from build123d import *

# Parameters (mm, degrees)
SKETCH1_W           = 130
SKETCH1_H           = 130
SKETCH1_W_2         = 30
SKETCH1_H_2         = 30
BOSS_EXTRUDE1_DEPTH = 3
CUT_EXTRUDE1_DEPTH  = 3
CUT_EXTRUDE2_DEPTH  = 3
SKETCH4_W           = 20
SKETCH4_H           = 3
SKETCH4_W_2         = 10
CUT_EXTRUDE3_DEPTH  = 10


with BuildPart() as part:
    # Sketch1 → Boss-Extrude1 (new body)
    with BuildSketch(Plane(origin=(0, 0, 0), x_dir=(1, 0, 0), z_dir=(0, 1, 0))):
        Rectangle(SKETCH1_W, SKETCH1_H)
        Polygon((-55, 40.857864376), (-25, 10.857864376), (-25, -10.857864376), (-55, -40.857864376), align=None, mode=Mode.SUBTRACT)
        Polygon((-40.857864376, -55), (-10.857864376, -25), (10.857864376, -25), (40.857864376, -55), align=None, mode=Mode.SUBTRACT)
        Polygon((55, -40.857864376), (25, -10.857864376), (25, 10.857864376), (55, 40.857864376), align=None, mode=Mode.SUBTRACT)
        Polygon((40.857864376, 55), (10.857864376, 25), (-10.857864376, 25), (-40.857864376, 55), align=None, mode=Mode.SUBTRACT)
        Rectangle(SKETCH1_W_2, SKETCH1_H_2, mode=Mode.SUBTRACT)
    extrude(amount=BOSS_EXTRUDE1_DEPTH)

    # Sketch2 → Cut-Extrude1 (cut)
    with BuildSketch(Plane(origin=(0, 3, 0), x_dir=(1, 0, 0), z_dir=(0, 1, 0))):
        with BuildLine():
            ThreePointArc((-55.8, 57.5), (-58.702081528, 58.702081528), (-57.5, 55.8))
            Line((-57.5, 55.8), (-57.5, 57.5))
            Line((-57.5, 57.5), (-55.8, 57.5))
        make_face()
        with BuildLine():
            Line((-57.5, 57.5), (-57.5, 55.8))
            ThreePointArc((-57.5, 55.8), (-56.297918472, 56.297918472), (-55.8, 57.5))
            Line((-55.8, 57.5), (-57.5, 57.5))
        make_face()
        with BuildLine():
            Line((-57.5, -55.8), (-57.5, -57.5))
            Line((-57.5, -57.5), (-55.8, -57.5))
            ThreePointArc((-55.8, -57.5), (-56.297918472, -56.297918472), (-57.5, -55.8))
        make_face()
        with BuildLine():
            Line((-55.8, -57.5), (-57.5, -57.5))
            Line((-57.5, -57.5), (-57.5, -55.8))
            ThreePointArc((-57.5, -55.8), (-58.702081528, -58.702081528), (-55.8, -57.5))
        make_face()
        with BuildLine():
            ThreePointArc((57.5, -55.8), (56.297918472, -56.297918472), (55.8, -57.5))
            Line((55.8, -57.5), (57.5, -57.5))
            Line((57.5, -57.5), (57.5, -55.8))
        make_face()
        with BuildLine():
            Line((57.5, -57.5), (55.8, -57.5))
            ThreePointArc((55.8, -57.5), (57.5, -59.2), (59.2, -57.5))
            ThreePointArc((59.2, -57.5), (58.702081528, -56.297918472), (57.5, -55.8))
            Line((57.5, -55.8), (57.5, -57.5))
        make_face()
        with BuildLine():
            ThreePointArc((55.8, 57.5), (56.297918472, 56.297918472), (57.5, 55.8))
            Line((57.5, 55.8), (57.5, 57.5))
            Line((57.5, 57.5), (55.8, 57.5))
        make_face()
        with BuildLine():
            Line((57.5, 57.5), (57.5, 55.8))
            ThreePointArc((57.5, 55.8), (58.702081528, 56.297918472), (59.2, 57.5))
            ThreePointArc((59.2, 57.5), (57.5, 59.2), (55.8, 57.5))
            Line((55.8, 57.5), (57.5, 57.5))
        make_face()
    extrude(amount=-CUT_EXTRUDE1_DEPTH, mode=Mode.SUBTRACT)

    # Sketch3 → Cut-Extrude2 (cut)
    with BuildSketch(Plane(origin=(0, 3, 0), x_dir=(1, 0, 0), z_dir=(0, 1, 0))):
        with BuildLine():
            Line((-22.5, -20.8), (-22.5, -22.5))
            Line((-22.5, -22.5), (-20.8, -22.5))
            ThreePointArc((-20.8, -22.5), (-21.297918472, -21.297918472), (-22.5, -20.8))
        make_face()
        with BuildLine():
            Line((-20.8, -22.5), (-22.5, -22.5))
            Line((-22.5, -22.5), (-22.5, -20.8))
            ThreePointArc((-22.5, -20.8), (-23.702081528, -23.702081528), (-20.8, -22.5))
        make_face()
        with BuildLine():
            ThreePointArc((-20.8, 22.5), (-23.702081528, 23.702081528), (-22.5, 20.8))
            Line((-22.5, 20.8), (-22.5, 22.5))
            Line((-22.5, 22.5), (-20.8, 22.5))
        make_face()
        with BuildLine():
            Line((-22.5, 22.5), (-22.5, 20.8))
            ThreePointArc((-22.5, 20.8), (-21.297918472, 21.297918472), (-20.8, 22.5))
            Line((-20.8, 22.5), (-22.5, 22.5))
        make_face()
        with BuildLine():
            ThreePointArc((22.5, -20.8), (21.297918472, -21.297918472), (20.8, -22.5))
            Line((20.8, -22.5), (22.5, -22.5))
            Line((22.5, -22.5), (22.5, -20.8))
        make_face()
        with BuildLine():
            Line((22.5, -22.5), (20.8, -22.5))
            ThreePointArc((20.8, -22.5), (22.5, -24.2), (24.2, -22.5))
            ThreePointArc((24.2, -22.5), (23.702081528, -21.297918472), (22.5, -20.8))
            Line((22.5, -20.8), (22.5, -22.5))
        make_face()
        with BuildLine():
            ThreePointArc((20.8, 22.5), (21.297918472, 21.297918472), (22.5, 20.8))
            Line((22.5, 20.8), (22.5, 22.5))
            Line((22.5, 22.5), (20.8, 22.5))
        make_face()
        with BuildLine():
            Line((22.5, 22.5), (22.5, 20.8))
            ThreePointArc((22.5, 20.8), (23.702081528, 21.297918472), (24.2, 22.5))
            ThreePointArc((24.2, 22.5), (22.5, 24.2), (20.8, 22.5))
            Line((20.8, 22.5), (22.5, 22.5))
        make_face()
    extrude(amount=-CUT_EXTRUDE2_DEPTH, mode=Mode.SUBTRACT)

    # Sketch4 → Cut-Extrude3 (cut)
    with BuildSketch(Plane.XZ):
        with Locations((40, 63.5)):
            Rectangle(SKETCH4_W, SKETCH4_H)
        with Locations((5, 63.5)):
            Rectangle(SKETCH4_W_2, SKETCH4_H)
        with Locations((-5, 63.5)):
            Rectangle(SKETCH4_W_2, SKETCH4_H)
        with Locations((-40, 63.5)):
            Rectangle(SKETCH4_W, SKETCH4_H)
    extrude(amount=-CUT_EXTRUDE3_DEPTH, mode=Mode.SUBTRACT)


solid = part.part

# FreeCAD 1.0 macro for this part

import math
import FreeCAD as App
import Part
import Sketcher

V = App.Vector
Q = App.Units.Quantity

doc = App.newDocument("Part")
body = doc.addObject("PartDesign::Body", "Body")

sketch1 = body.newObject("Sketcher::SketchObject", "Sketch")
sketch1.AttachmentSupport = (doc.getObject("XZ_Plane"), [""])
sketch1.MapMode = "FlatFace"
sketch1.addGeometry([
    Part.LineSegment(V(-65, -65, 0), V(-65, 65, 0)),
    Part.LineSegment(V(-65, 65, 0), V(65, 65, 0)),
    Part.LineSegment(V(65, 65, 0), V(65, -65, 0)),
    Part.LineSegment(V(65, -65, 0), V(-65, -65, 0)),
    Part.LineSegment(V(40.857864, 55, 0), V(-40.857864, 55, 0)),
    Part.LineSegment(V(-40.857864, 55, 0), V(-10.857864, 25, 0)),
    Part.LineSegment(V(-10.857864, 25, 0), V(10.857864, 25, 0)),
    Part.LineSegment(V(10.857864, 25, 0), V(40.857864, 55, 0)),
    Part.LineSegment(V(-55, 40.857864, 0), V(-55, -40.857864, 0)),
    Part.LineSegment(V(-55, -40.857864, 0), V(-25, -10.857864, 0)),
    Part.LineSegment(V(-25, -10.857864, 0), V(-25, 10.857864, 0)),
    Part.LineSegment(V(-25, 10.857864, 0), V(-55, 40.857864, 0)),
    Part.LineSegment(V(15, 15, 0), V(-15, 15, 0)),
    Part.LineSegment(V(-15, 15, 0), V(-15, -15, 0)),
    Part.LineSegment(V(-15, -15, 0), V(15, -15, 0)),
    Part.LineSegment(V(15, -15, 0), V(15, 15, 0)),
    Part.LineSegment(V(55, -40.857864, 0), V(55, 40.857864, 0)),
    Part.LineSegment(V(55, 40.857864, 0), V(25, 10.857864, 0)),
    Part.LineSegment(V(25, 10.857864, 0), V(25, -10.857864, 0)),
    Part.LineSegment(V(25, -10.857864, 0), V(55, -40.857864, 0)),
    Part.LineSegment(V(-40.857864, -55, 0), V(40.857864, -55, 0)),
    Part.LineSegment(V(40.857864, -55, 0), V(10.857864, -25, 0)),
    Part.LineSegment(V(10.857864, -25, 0), V(-10.857864, -25, 0)),
    Part.LineSegment(V(-10.857864, -25, 0), V(-40.857864, -55, 0)),
], False)
sketch1.addConstraint([
    Sketcher.Constraint("Coincident", 0, 2, 1, 1),
    Sketcher.Constraint("Coincident", 1, 2, 2, 1),
    Sketcher.Constraint("Coincident", 2, 2, 3, 1),
    Sketcher.Constraint("Coincident", 3, 2, 0, 1),
    Sketcher.Constraint("Coincident", 4, 2, 5, 1),
    Sketcher.Constraint("Coincident", 5, 2, 6, 1),
    Sketcher.Constraint("Coincident", 6, 2, 7, 1),
    Sketcher.Constraint("Coincident", 7, 2, 4, 1),
    Sketcher.Constraint("Coincident", 8, 2, 9, 1),
    Sketcher.Constraint("Coincident", 9, 2, 10, 1),
    Sketcher.Constraint("Coincident", 10, 2, 11, 1),
    Sketcher.Constraint("Coincident", 11, 2, 8, 1),
    Sketcher.Constraint("Coincident", 12, 2, 13, 1),
    Sketcher.Constraint("Coincident", 13, 2, 14, 1),
    Sketcher.Constraint("Coincident", 14, 2, 15, 1),
    Sketcher.Constraint("Coincident", 15, 2, 12, 1),
    Sketcher.Constraint("Coincident", 16, 2, 17, 1),
    Sketcher.Constraint("Coincident", 17, 2, 18, 1),
    Sketcher.Constraint("Coincident", 18, 2, 19, 1),
    Sketcher.Constraint("Coincident", 19, 2, 16, 1),
    Sketcher.Constraint("Coincident", 20, 2, 21, 1),
    Sketcher.Constraint("Coincident", 21, 2, 22, 1),
    Sketcher.Constraint("Coincident", 22, 2, 23, 1),
    Sketcher.Constraint("Coincident", 23, 2, 20, 1),
    Sketcher.Constraint("Vertical", 0),
    Sketcher.Constraint("Horizontal", 1),
    Sketcher.Constraint("Vertical", 2),
    Sketcher.Constraint("Horizontal", 3),
    Sketcher.Constraint("Horizontal", 4),
    Sketcher.Constraint("Horizontal", 6),
    Sketcher.Constraint("Vertical", 8),
    Sketcher.Constraint("Vertical", 10),
    Sketcher.Constraint("Horizontal", 12),
    Sketcher.Constraint("Vertical", 13),
    Sketcher.Constraint("Horizontal", 14),
    Sketcher.Constraint("Vertical", 15),
    Sketcher.Constraint("Vertical", 16),
    Sketcher.Constraint("Vertical", 18),
    Sketcher.Constraint("Horizontal", 20),
    Sketcher.Constraint("Horizontal", 22),
    Sketcher.Constraint("Symmetric", 0, 2, 2, 2, -1, 1),
    Sketcher.Constraint("Symmetric", 12, 2, 14, 2, -1, 1),
    Sketcher.Constraint("Symmetric", 8, 2, 16, 2, -1, 1),
    Sketcher.Constraint("Symmetric", 9, 2, 17, 2, -1, 1),
    Sketcher.Constraint("Symmetric", 4, 2, 20, 2, -1, 1),
    Sketcher.Constraint("Symmetric", 5, 2, 21, 2, -1, 1),
    Sketcher.Constraint("Perpendicular", 5, 7),
    Sketcher.Constraint("Parallel", 7, 9),
    Sketcher.Constraint("Perpendicular", 9, 11),
    Sketcher.Constraint("Perpendicular", 17, 19),
    Sketcher.Constraint("Perpendicular", 21, 23),
    Sketcher.Constraint("Horizontal", 11, 2, 16, 2),
    Sketcher.Constraint("Horizontal", 10, 2, 17, 2),
    Sketcher.Constraint("Horizontal", 9, 2, 18, 2),
    Sketcher.Constraint("Vertical", 7, 2, 20, 2),
    Sketcher.Constraint("Vertical", 5, 2, 22, 2),
    Sketcher.Constraint("Equal", 3, 0),
    Sketcher.Constraint("Equal", 20, 8),
    Sketcher.Constraint("Equal", 22, 10),
    Sketcher.Constraint("Equal", 14, 13),
    Sketcher.Constraint("DistanceX", 1, 1, 1, 2, Q("130 mm")),
    Sketcher.Constraint("DistanceX", 12, 2, 12, 1, Q("30 mm")),
    Sketcher.Constraint("DistanceY", -1, 1, 4, 2, Q("55 mm")),
    Sketcher.Constraint("DistanceY", -1, 1, 5, 2, Q("25 mm")),
    Sketcher.Constraint("DistanceX", 8, 2, -1, 1, Q("55 mm")),
    Sketcher.Constraint("DistanceX", 4, 2, 4, 1, Q("81.715729 mm")),
])
pad1 = body.newObject("PartDesign::Pad", "Pad")
pad1.Profile = sketch1
pad1.Length = 3
pad1.Reversed = True

sketch2 = body.newObject("Sketcher::SketchObject", "Sketch001")
sketch2.AttachmentSupport = (doc.getObject("XZ_Plane"), [""])
sketch2.MapMode = "FlatFace"
sketch2.AttachmentOffset = App.Placement(V(0, 0, -3), App.Rotation())
sketch2.addGeometry([
    Part.ArcOfCircle(Part.Circle(V(-57.5, -57.5, 0), V(0, 0, 1), 1.7), math.radians(90), math.radians(360)),
    Part.ArcOfCircle(Part.Circle(V(-57.5, -57.5, 0), V(0, 0, 1), 1.7), math.radians(0), math.radians(90)),
    Part.ArcOfCircle(Part.Circle(V(-57.5, 57.5, 0), V(0, 0, 1), 1.7), math.radians(-90), math.radians(0)),
    Part.ArcOfCircle(Part.Circle(V(-57.5, 57.5, 0), V(0, 0, 1), 1.7), math.radians(0), math.radians(270)),
    Part.ArcOfCircle(Part.Circle(V(57.5, 57.5, 0), V(0, 0, 1), 1.7), math.radians(180), math.radians(270)),
    Part.ArcOfCircle(Part.Circle(V(57.5, 57.5, 0), V(0, 0, 1), 1.7), math.radians(0), math.radians(180)),
    Part.ArcOfCircle(Part.Circle(V(57.5, 57.5, 0), V(0, 0, 1), 1.7), math.radians(-90), math.radians(0)),
    Part.ArcOfCircle(Part.Circle(V(57.5, -57.5, 0), V(0, 0, 1), 1.7), math.radians(90), math.radians(180)),
    Part.ArcOfCircle(Part.Circle(V(57.5, -57.5, 0), V(0, 0, 1), 1.7), math.radians(0), math.radians(90)),
    Part.ArcOfCircle(Part.Circle(V(57.5, -57.5, 0), V(0, 0, 1), 1.7), math.radians(180), math.radians(360)),
], False)
sketch2.addConstraint([
    Sketcher.Constraint("Tangent", 0, 1, 1, 2),
    Sketcher.Constraint("Coincident", 1, 1, 0, 2),
    Sketcher.Constraint("Tangent", 2, 1, 3, 2),
    Sketcher.Constraint("Coincident", 3, 1, 2, 2),
    Sketcher.Constraint("Tangent", 4, 1, 5, 2),
    Sketcher.Constraint("Tangent", 5, 1, 6, 2),
    Sketcher.Constraint("Tangent", 6, 1, 4, 2),
    Sketcher.Constraint("Tangent", 7, 1, 8, 2),
    Sketcher.Constraint("Tangent", 8, 1, 9, 2),
    Sketcher.Constraint("Tangent", 9, 1, 7, 2),
    Sketcher.Constraint("Equal", 1, 2),
    Sketcher.Constraint("Equal", 3, 4),
    Sketcher.Constraint("Equal", 6, 7),
    Sketcher.Constraint("Symmetric", 0, 3, 4, 3, -1, 1),
    Sketcher.Constraint("Symmetric", 2, 3, 7, 3, -1, 1),
    Sketcher.Constraint("Symmetric", 2, 3, 4, 3, -2),
    Sketcher.Constraint("Horizontal", 9, 3, 1, 1),
    Sketcher.Constraint("Horizontal", 6, 3, 3, 1),
    Sketcher.Constraint("Horizontal", 3, 1, 4, 1),
    Sketcher.Constraint("Horizontal", 4, 1, 5, 1),
    Sketcher.Constraint("Horizontal", 1, 1, 8, 1),
    Sketcher.Constraint("Horizontal", 8, 1, 9, 1),
    Sketcher.Constraint("Vertical", 3, 3, 0, 1),
    Sketcher.Constraint("Vertical", 0, 1, 2, 1),
    Sketcher.Constraint("Vertical", 9, 3, 6, 1),
    Sketcher.Constraint("Vertical", 6, 1, 7, 1),
    Sketcher.Constraint("Radius", 0, Q("1.7 mm")),
    Sketcher.Constraint("DistanceY", 0, 3, 2, 3, Q("115 mm")),
    Sketcher.Constraint("DistanceX", 2, 3, 4, 3, Q("115 mm")),
])
pocket1 = body.newObject("PartDesign::Pocket", "Pocket")
pocket1.Profile = sketch2
pocket1.Length = 3
pocket1.Reversed = True

sketch3 = body.newObject("Sketcher::SketchObject", "Sketch002")
sketch3.AttachmentSupport = (doc.getObject("XZ_Plane"), [""])
sketch3.MapMode = "FlatFace"
sketch3.AttachmentOffset = App.Placement(V(0, 0, -3), App.Rotation())
sketch3.addGeometry([
    Part.ArcOfCircle(Part.Circle(V(-22.5, 22.5, 0), V(0, 0, 1), 1.7), math.radians(-90), math.radians(0)),
    Part.ArcOfCircle(Part.Circle(V(-22.5, 22.5, 0), V(0, 0, 1), 1.7), math.radians(0), math.radians(270)),
    Part.ArcOfCircle(Part.Circle(V(-22.5, -22.5, 0), V(0, 0, 1), 1.7), math.radians(90), math.radians(360)),
    Part.ArcOfCircle(Part.Circle(V(-22.5, -22.5, 0), V(0, 0, 1), 1.7), math.radians(0), math.radians(90)),
    Part.ArcOfCircle(Part.Circle(V(22.5, 22.5, 0), V(0, 0, 1), 1.7), math.radians(180), math.radians(270)),
    Part.ArcOfCircle(Part.Circle(V(22.5, 22.5, 0), V(0, 0, 1), 1.7), math.radians(0), math.radians(180)),
    Part.ArcOfCircle(Part.Circle(V(22.5, 22.5, 0), V(0, 0, 1), 1.7), math.radians(-90), math.radians(0)),
    Part.ArcOfCircle(Part.Circle(V(22.5, -22.5, 0), V(0, 0, 1), 1.7), math.radians(90), math.radians(180)),
    Part.ArcOfCircle(Part.Circle(V(22.5, -22.5, 0), V(0, 0, 1), 1.7), math.radians(0), math.radians(90)),
    Part.ArcOfCircle(Part.Circle(V(22.5, -22.5, 0), V(0, 0, 1), 1.7), math.radians(180), math.radians(360)),
], False)
sketch3.addConstraint([
    Sketcher.Constraint("Tangent", 0, 1, 1, 2),
    Sketcher.Constraint("Coincident", 1, 1, 0, 2),
    Sketcher.Constraint("Tangent", 2, 1, 3, 2),
    Sketcher.Constraint("Coincident", 3, 1, 2, 2),
    Sketcher.Constraint("Tangent", 4, 1, 5, 2),
    Sketcher.Constraint("Tangent", 5, 1, 6, 2),
    Sketcher.Constraint("Tangent", 6, 1, 4, 2),
    Sketcher.Constraint("Tangent", 7, 1, 8, 2),
    Sketcher.Constraint("Tangent", 8, 1, 9, 2),
    Sketcher.Constraint("Tangent", 9, 1, 7, 2),
    Sketcher.Constraint("Equal", 1, 2),
    Sketcher.Constraint("Equal", 3, 4),
    Sketcher.Constraint("Equal", 6, 7),
    Sketcher.Constraint("Symmetric", 2, 3, 4, 3, -1, 1),
    Sketcher.Constraint("Symmetric", 0, 3, 7, 3, -1, 1),
    Sketcher.Constraint("Symmetric", 0, 3, 4, 3, -2),
    Sketcher.Constraint("Horizontal", 6, 3, 1, 1),
    Sketcher.Constraint("Horizontal", 9, 3, 3, 1),
    Sketcher.Constraint("Horizontal", 1, 1, 4, 1),
    Sketcher.Constraint("Horizontal", 4, 1, 5, 1),
    Sketcher.Constraint("Horizontal", 3, 1, 8, 1),
    Sketcher.Constraint("Horizontal", 8, 1, 9, 1),
    Sketcher.Constraint("Vertical", 3, 3, 0, 1),
    Sketcher.Constraint("Vertical", 0, 1, 2, 1),
    Sketcher.Constraint("Vertical", 9, 3, 6, 1),
    Sketcher.Constraint("Vertical", 6, 1, 7, 1),
    Sketcher.Constraint("Radius", 0, Q("1.7 mm")),
    Sketcher.Constraint("DistanceY", 2, 3, 0, 3, Q("45 mm")),
    Sketcher.Constraint("DistanceX", 0, 3, 4, 3, Q("45 mm")),
])
pocket2 = body.newObject("PartDesign::Pocket", "Pocket001")
pocket2.Profile = sketch3
pocket2.Length = 3
pocket2.Reversed = True

sketch4 = body.newObject("Sketcher::SketchObject", "Sketch003")
sketch4.AttachmentSupport = (doc.getObject("XZ_Plane"), [""])
sketch4.MapMode = "FlatFace"
sketch4.addGeometry([
    Part.LineSegment(V(30, 65, 0), V(30, 62, 0)),
    Part.LineSegment(V(30, 62, 0), V(50, 62, 0)),
    Part.LineSegment(V(50, 62, 0), V(50, 65, 0)),
    Part.LineSegment(V(50, 65, 0), V(30, 65, 0)),
    Part.LineSegment(V(10, 62, 0), V(10, 65, 0)),
    Part.LineSegment(V(10, 65, 0), V(-10, 65, 0)),
    Part.LineSegment(V(-10, 65, 0), V(-10, 62, 0)),
    Part.LineSegment(V(-10, 62, 0), V(10, 62, 0)),
    Part.LineSegment(V(-50, 65, 0), V(-50, 62, 0)),
    Part.LineSegment(V(-50, 62, 0), V(-30, 62, 0)),
    Part.LineSegment(V(-30, 62, 0), V(-30, 65, 0)),
    Part.LineSegment(V(-30, 65, 0), V(-50, 65, 0)),
], False)
sketch4.addConstraint([
    Sketcher.Constraint("Coincident", 0, 2, 1, 1),
    Sketcher.Constraint("Coincident", 1, 2, 2, 1),
    Sketcher.Constraint("Coincident", 2, 2, 3, 1),
    Sketcher.Constraint("Coincident", 3, 2, 0, 1),
    Sketcher.Constraint("Coincident", 4, 2, 5, 1),
    Sketcher.Constraint("Coincident", 5, 2, 6, 1),
    Sketcher.Constraint("Coincident", 6, 2, 7, 1),
    Sketcher.Constraint("Coincident", 7, 2, 4, 1),
    Sketcher.Constraint("Coincident", 8, 2, 9, 1),
    Sketcher.Constraint("Coincident", 9, 2, 10, 1),
    Sketcher.Constraint("Coincident", 10, 2, 11, 1),
    Sketcher.Constraint("Coincident", 11, 2, 8, 1),
    Sketcher.Constraint("Vertical", 0),
    Sketcher.Constraint("Horizontal", 1),
    Sketcher.Constraint("Vertical", 2),
    Sketcher.Constraint("Horizontal", 3),
    Sketcher.Constraint("Vertical", 4),
    Sketcher.Constraint("Horizontal", 5),
    Sketcher.Constraint("Vertical", 6),
    Sketcher.Constraint("Horizontal", 7),
    Sketcher.Constraint("Vertical", 8),
    Sketcher.Constraint("Horizontal", 9),
    Sketcher.Constraint("Vertical", 10),
    Sketcher.Constraint("Horizontal", 11),
    Sketcher.Constraint("Symmetric", 1, 2, 8, 2, -2),
    Sketcher.Constraint("Symmetric", 3, 2, 10, 2, -2),
    Sketcher.Constraint("Horizontal", 3, 2, 4, 2),
    Sketcher.Constraint("Horizontal", 1, 2, 6, 2),
    Sketcher.Constraint("Equal", 3, 5),
    Sketcher.Constraint("DistanceX", 1, 1, 1, 2, Q("20 mm")),
    Sketcher.Constraint("DistanceY", 0, 2, 0, 1, Q("3 mm")),
    Sketcher.Constraint("DistanceX", -1, 1, 0, 2, Q("30 mm")),
    Sketcher.Constraint("DistanceY", -1, 1, 0, 2, Q("62 mm")),
    Sketcher.Constraint("DistanceX", -1, 1, 4, 2, Q("10 mm")),
])
pocket3 = body.newObject("PartDesign::Pocket", "Pocket002")
pocket3.Profile = sketch4
pocket3.Length = 10

doc.recompute()
